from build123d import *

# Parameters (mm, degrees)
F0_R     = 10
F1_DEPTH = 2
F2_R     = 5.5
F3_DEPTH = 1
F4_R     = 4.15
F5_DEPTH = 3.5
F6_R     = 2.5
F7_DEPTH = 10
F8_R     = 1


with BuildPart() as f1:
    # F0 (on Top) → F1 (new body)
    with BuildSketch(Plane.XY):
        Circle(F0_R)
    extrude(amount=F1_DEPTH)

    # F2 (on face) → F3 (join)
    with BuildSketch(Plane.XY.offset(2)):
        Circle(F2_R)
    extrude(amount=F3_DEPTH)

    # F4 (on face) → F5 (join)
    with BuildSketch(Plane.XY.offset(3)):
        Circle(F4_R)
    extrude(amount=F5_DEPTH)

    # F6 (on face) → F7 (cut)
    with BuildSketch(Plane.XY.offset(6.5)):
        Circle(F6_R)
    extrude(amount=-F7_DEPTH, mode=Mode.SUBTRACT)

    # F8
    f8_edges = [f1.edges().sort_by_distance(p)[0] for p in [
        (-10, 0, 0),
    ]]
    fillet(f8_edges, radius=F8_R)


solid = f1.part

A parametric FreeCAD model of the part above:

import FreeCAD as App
import Part
import Sketcher
Q = App.Units.Quantity


def edges_at(feature, points):
    """Names of the edges that pass closest to the given points."""
    edges = feature.Shape.Edges
    near = lambda p: min(range(len(edges)), key=lambda i: edges[i].distToShape(Part.Vertex(*p))[0])
    return sorted({f"Edge{near(p) + 1}" for p in points})

doc = App.newDocument("Part")
body = doc.addObject("PartDesign::Body", "Body")

# Sketch on XY plane
sketch1 = doc.addObject("Sketcher::SketchObject", "Sketch")
body.addObject(sketch1)
sketch1.AttachmentSupport = (doc.XY_Plane, [""])
sketch1.MapMode = "FlatFace"
sketch1.addGeometry(Part.Circle(App.Vector(0, 0, 0), App.Vector(0, 0, 1), 10), False)
sketch1.addConstraint([
    Sketcher.Constraint("Coincident", 0, 3, -1, 1),
    Sketcher.Constraint("Diameter", 0, Q("20 mm")),
])
pad1 = doc.addObject("PartDesign::Pad", "Pad")
body.addObject(pad1)
pad1.Profile = sketch1
pad1.Length = 2

# Sketch on XY plane
sketch2 = doc.addObject("Sketcher::SketchObject", "Sketch001")
body.addObject(sketch2)
sketch2.AttachmentSupport = (doc.XY_Plane, [""])
sketch2.MapMode = "FlatFace"
sketch2.AttachmentOffset = App.Placement(App.Vector(0, 0, 2), App.Rotation())
sketch2.addGeometry(Part.Circle(App.Vector(0, 0, 0), App.Vector(0, 0, 1), 6), False)
sketch2.addConstraint([
    Sketcher.Constraint("Coincident", 0, 3, -1, 1),
    Sketcher.Constraint("Diameter", 0, Q("11 mm")),
])
pad2 = doc.addObject("PartDesign::Pad", "Pad001")
body.addObject(pad2)
pad2.Profile = sketch2
pad2.Length = 1

# Sketch on XY plane
sketch3 = doc.addObject("Sketcher::SketchObject", "Sketch002")
body.addObject(sketch3)
sketch3.AttachmentSupport = (doc.XY_Plane, [""])
sketch3.MapMode = "FlatFace"
sketch3.AttachmentOffset = App.Placement(App.Vector(0, 0, 3), App.Rotation())
sketch3.addGeometry(Part.Circle(App.Vector(0, 0, 0), App.Vector(0, 0, 1), 4.2), False)
sketch3.addConstraint([
    Sketcher.Constraint("Coincident", 0, 3, -1, 1),
    Sketcher.Constraint("Diameter", 0, Q("8.3 mm")),
])
pad3 = doc.addObject("PartDesign::Pad", "Pad002")
body.addObject(pad3)
pad3.Profile = sketch3
pad3.Length = 3.5

# Sketch on XY plane
sketch4 = doc.addObject("Sketcher::SketchObject", "Sketch003")
body.addObject(sketch4)
sketch4.AttachmentSupport = (doc.XY_Plane, [""])
sketch4.MapMode = "FlatFace"
sketch4.AttachmentOffset = App.Placement(App.Vector(0, 0, 6.5), App.Rotation())
sketch4.addGeometry(Part.Circle(App.Vector(0, 0, 0), App.Vector(0, 0, 1), 2.5), False)
sketch4.addConstraint([
    Sketcher.Constraint("Coincident", 0, 3, -1, 1),
    Sketcher.Constraint("Diameter", 0, Q("5 mm")),
])
pocket1 = doc.addObject("PartDesign::Pocket", "Pocket")
body.addObject(pocket1)
pocket1.Profile = sketch4
pocket1.Length = 10
doc.recompute()

fillet = doc.addObject("PartDesign::Fillet", "Fillet")
body.addObject(fillet)
fillet.Base = (pocket1, edges_at(pocket1, [(-10, 0, 0)]))
fillet.Radius = 1

doc.recompute()
